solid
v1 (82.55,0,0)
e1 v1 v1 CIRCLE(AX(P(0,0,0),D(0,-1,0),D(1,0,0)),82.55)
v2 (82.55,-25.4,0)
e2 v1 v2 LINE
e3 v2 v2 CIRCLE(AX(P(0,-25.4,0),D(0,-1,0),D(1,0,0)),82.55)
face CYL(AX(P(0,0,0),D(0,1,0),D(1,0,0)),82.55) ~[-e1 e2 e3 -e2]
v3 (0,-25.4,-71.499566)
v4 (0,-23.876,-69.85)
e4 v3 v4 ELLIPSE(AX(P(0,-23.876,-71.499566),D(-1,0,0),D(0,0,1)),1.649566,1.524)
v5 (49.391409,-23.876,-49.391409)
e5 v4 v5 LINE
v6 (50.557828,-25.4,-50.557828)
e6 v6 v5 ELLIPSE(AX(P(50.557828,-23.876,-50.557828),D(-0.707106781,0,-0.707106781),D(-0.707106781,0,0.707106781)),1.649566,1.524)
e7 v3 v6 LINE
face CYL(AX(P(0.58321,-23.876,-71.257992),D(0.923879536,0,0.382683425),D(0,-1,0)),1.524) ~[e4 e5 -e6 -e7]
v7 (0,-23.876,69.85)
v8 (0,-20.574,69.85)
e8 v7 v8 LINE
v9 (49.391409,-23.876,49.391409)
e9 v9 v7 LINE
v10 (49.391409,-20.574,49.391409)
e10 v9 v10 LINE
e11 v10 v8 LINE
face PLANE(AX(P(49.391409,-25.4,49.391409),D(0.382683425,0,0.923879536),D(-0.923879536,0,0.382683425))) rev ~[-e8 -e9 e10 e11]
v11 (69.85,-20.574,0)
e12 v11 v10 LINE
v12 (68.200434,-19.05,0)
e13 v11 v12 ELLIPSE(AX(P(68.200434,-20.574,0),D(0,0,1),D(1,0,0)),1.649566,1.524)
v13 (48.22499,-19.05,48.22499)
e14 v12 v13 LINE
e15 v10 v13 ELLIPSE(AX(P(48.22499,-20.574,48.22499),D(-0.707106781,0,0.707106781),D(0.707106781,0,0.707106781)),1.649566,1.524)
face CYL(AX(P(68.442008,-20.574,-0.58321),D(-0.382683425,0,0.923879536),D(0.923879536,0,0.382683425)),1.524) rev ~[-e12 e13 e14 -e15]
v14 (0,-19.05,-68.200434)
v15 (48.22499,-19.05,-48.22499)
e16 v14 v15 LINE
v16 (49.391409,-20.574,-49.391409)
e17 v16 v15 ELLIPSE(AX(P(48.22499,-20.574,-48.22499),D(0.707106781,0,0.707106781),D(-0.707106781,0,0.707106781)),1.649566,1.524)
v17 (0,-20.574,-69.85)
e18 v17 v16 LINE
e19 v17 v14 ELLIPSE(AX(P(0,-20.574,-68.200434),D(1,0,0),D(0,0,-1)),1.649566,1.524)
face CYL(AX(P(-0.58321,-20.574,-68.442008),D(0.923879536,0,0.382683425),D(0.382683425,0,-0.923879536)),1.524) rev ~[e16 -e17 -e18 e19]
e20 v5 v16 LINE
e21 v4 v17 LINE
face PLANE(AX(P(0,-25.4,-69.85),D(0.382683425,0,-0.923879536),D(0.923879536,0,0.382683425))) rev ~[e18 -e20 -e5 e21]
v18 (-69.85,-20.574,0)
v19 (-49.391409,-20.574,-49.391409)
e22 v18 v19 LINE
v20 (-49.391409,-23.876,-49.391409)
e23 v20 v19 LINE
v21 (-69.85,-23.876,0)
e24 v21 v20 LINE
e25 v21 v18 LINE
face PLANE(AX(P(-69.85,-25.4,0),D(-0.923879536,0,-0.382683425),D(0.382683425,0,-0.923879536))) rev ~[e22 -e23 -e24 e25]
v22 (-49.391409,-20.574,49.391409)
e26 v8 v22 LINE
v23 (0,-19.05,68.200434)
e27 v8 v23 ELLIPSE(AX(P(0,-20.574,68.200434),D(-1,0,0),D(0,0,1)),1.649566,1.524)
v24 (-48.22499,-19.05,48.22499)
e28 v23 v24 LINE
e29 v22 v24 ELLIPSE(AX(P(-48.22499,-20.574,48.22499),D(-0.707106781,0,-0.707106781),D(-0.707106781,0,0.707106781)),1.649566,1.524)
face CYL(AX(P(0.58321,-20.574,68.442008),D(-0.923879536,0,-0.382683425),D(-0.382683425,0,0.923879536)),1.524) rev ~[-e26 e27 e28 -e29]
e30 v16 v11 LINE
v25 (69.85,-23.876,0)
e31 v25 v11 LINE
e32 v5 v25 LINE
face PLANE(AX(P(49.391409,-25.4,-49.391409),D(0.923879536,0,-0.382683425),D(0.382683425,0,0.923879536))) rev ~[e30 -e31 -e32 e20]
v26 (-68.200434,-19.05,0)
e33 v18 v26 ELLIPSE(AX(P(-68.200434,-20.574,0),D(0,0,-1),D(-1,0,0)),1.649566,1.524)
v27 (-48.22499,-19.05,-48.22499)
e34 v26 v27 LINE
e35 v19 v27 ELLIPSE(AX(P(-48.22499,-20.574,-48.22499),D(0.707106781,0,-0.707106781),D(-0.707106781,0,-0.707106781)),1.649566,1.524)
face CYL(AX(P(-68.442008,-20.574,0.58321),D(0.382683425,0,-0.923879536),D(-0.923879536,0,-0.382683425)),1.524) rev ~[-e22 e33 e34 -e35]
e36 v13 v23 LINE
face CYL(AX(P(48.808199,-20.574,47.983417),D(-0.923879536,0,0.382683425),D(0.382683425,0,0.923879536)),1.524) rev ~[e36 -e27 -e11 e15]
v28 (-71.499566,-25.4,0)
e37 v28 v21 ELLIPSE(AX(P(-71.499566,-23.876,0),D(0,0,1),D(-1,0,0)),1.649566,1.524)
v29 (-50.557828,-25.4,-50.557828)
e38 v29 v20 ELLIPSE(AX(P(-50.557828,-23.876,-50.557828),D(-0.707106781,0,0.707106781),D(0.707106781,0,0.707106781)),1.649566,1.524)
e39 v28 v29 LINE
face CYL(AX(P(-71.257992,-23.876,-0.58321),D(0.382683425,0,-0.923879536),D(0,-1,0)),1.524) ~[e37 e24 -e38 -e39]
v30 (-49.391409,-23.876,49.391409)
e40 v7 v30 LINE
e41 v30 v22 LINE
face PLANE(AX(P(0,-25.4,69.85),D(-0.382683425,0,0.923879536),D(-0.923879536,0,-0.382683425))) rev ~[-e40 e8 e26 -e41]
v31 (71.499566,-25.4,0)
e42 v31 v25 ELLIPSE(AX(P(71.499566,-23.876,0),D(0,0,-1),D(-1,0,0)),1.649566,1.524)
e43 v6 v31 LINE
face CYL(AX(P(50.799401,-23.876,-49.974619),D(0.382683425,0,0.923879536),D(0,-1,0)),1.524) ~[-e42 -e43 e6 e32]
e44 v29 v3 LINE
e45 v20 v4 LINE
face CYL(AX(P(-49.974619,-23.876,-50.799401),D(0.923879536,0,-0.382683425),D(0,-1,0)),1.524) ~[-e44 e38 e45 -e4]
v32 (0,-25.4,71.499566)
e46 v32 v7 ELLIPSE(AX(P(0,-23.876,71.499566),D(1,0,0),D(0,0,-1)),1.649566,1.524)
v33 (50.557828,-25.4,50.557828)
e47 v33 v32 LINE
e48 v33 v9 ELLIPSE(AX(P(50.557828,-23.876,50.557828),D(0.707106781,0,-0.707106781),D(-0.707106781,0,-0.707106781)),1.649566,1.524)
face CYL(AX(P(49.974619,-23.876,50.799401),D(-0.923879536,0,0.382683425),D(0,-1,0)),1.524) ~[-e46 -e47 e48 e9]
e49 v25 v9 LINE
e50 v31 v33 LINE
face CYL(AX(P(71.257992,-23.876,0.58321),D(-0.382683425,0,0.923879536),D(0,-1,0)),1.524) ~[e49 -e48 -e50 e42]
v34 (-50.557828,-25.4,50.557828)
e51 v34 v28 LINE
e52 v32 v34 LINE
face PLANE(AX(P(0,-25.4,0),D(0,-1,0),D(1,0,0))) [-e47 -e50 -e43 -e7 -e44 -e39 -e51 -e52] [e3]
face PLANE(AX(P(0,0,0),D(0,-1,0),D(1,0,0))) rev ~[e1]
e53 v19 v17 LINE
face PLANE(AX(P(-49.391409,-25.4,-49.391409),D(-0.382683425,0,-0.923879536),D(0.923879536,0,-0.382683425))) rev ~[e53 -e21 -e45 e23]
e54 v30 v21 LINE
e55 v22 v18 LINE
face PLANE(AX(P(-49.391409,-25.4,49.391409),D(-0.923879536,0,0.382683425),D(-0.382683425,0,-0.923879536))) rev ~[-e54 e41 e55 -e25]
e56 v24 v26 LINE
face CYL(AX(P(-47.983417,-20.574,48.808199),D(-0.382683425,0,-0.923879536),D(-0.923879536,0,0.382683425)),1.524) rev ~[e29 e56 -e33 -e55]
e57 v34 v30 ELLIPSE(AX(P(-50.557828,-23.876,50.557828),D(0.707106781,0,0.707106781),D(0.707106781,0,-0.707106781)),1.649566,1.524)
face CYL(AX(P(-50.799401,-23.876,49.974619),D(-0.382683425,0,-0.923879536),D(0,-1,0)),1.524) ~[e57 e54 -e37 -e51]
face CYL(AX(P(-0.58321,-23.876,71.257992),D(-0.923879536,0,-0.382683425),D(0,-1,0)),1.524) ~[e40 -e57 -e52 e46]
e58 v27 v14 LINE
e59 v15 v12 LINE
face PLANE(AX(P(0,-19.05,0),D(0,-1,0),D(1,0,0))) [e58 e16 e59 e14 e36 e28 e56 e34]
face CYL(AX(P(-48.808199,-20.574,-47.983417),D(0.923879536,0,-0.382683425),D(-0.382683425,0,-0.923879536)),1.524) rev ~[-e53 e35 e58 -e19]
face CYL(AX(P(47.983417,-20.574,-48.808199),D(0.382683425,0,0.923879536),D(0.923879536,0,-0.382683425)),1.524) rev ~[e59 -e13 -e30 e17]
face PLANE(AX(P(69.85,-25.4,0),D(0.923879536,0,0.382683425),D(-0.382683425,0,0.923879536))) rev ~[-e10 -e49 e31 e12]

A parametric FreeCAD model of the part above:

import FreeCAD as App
import Part
import Sketcher
from FreeCAD import Vector
Q = App.Units.Quantity


def edges_at(feature, points):
    """Names of the edges that pass closest to the given points."""
    edges = feature.Shape.Edges
    near = lambda p: min(range(len(edges)), key=lambda i: edges[i].distToShape(Part.Vertex(*p))[0])
    return sorted({f"Edge{near(p) + 1}" for p in points})


def add_polygon(sketch, points):
    """Adds a closed chain of lines whose ends are joined by coincident constraints."""
    first, n = sketch.GeometryCount, len(points)
    for a, b in zip(points, points[1:] + points[:1]):
        sketch.addGeometry(Part.LineSegment(App.Vector(*a, 0), App.Vector(*b, 0)), False)
    for i in range(n):
        sketch.addConstraint(Sketcher.Constraint("Coincident", first + i, 2, first + (i + 1) % n, 1))

doc = App.newDocument("Part")
body = doc.addObject("PartDesign::Body", "Body")

# Sketch on XZ plane
sketch1 = body.newObject("Sketcher::SketchObject", "Sketch")
sketch1.AttachmentSupport = (doc.getObject("XZ_Plane"), [""])
sketch1.MapMode = "FlatFace"
sketch1.addGeometry(Part.Circle(Vector(0, 0, 0), Vector(0, 0, 1), 82.55), False)
sketch1.addConstraint([
    Sketcher.Constraint("Coincident", 0, 3, -1, 1),
    Sketcher.Constraint("Diameter", 0, Q("6.5 in")),
])
pad1 = body.newObject("PartDesign::Pad", "Pad")
pad1.Profile = sketch1
pad1.Length = Q("1 in")

# Sketch on XZ plane
sketch2 = body.newObject("Sketcher::SketchObject", "Sketch001")
sketch2.AttachmentSupport = (doc.getObject("XZ_Plane"), [""])
sketch2.MapMode = "FlatFace"
sketch2.AttachmentOffset = App.Placement(Vector(0, 0, 1 * 25.4), App.Rotation())
add_polygon(sketch2, [(49.391409, -49.391409), (69.85, 0), (49.391409, 49.391409), (0, 69.85), (-49.391409, 49.391409), (-69.85, 0), (-49.391409, -49.391409), (0, -69.85)])  # lines 0-7
sketch2.addConstraint([
    Sketcher.Constraint("Symmetric", 0, 2, 4, 2, -1, 1),
    Sketcher.Constraint("Symmetric", 1, 2, 5, 2, -1, 1),
    Sketcher.Constraint("Symmetric", 2, 2, 6, 2, -1, 1),
    Sketcher.Constraint("Symmetric", 3, 2, 7, 2, -1, 1),
    Sketcher.Constraint("Symmetric", 1, 2, 3, 2, -2),
    Sketcher.Constraint("PointOnObject", 0, 2, -1),
    Sketcher.Constraint("PointOnObject", 2, 2, -2),
    Sketcher.Constraint("Perpendicular", 0, 2),
    Sketcher.Constraint("Equal", 1, 2),
    Sketcher.Constraint("Angle", 0, Q("67.5 deg")),
    Sketcher.Constraint("DistanceX", 4, 2, 0, 2, Q("5.5 in")),
])
pocket1 = body.newObject("PartDesign::Pocket", "Pocket")
pocket1.Profile = sketch2
pocket1.Length = Q("0.25 in")
doc.recompute()

fillet = body.newObject("PartDesign::Fillet", "Fillet")
fillet.Base = (pocket1, edges_at(pocket1, [
    (59.621, -19.05, -24.696),
    (59.621, -19.05, 24.696),
    (24.696, -19.05, 59.621),
    (-24.696, -19.05, 59.621),
    (-59.621, -19.05, 24.696),
    (-59.621, -19.05, -24.696),
    (-24.696, -19.05, -59.621),
    (24.696, -19.05, -59.621),
    (-59.621, -25.4, 24.696),
    (-24.696, -25.4, 59.621),
    (24.696, -25.4, 59.621),
    (59.621, -25.4, 24.696),
    (59.621, -25.4, -24.696),
    (24.696, -25.4, -59.621),
    (-24.696, -25.4, -59.621),
    (-59.621, -25.4, -24.696),
]))
fillet.Radius = Q("0.06 in")

doc.recompute()
